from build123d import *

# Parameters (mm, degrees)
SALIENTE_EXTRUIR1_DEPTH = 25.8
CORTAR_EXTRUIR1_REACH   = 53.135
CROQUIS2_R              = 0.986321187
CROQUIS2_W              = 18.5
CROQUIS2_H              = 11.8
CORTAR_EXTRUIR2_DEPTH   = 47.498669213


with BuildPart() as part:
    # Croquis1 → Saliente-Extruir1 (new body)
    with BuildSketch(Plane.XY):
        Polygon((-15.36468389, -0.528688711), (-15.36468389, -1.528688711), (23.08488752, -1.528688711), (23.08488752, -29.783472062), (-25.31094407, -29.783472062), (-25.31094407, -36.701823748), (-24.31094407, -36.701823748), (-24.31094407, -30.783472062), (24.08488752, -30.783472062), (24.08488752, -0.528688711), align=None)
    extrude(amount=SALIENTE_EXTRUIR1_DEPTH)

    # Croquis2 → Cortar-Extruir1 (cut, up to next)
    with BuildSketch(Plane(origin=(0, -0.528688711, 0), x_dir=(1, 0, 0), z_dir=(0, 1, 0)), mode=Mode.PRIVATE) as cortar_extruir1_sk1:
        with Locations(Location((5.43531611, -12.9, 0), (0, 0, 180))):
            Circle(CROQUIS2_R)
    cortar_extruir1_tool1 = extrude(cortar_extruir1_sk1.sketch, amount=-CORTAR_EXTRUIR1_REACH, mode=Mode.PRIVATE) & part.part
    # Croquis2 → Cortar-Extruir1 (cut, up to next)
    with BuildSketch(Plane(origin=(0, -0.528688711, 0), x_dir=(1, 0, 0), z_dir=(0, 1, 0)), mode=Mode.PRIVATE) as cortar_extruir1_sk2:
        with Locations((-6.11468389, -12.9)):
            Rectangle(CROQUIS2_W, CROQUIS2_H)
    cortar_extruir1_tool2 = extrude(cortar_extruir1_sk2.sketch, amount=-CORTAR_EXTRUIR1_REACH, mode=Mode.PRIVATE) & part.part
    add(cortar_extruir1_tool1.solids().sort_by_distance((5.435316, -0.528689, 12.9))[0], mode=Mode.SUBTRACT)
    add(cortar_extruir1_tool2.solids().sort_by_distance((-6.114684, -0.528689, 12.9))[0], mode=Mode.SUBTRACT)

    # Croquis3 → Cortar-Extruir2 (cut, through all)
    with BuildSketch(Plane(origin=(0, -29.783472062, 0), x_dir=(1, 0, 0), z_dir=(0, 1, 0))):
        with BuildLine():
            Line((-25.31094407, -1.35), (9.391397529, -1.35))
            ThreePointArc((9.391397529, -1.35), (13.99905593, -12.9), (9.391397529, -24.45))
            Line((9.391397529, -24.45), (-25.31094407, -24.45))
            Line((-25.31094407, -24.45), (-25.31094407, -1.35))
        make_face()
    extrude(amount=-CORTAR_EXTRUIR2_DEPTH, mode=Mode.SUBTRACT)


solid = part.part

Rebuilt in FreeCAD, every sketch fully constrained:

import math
import FreeCAD as App
import Part
import Sketcher

V = App.Vector
Q = App.Units.Quantity


def add_polygon(sketch, points):
    """Adds a closed chain of lines whose ends are joined by coincident constraints."""
    first, n = sketch.GeometryCount, len(points)
    for a, b in zip(points, points[1:] + points[:1]):
        sketch.addGeometry(Part.LineSegment(App.Vector(*a, 0), App.Vector(*b, 0)), False)
    for i in range(n):
        sketch.addConstraint(Sketcher.Constraint("Coincident", first + i, 2, first + (i + 1) % n, 1))

doc = App.newDocument("Part")
body = doc.addObject("PartDesign::Body", "Body")

# Sketch on XY plane
sketch1 = body.newObject("Sketcher::SketchObject", "Sketch")
sketch1.AttachmentSupport = (doc.getObject("XY_Plane"), [""])
sketch1.MapMode = "FlatFace"
add_polygon(sketch1, [(-15.4, -0.5), (-15.4, -1.5), (23.1, -1.5), (23.1, -29.8), (-25.3, -29.8), (-25.3, -36.7), (-24.3, -36.7), (-24.3, -30.8), (24.1, -30.8), (24.1, -0.5)])  # lines 0-9
sketch1.addConstraint(Sketcher.Constraint("Vertical", 0))
sketch1.addConstraint(Sketcher.Constraint("Horizontal", 1))
sketch1.addConstraint(Sketcher.Constraint("Vertical", 2))
sketch1.addConstraint(Sketcher.Constraint("Horizontal", 3))
sketch1.addConstraint(Sketcher.Constraint("Vertical", 4))
sketch1.addConstraint(Sketcher.Constraint("Horizontal", 5))
sketch1.addConstraint(Sketcher.Constraint("Vertical", 6))
sketch1.addConstraint(Sketcher.Constraint("Horizontal", 7))
sketch1.addConstraint(Sketcher.Constraint("Vertical", 8))
sketch1.addConstraint(Sketcher.Constraint("Horizontal", 9))
sketch1.addConstraint(Sketcher.Constraint("Equal", 3, 7))
sketch1.addConstraint(Sketcher.Constraint("Equal", 5, 0))
sketch1.addConstraint(Sketcher.Constraint("DistanceX", 5, 1, 5, 2, Q("1 mm")))
sketch1.addConstraint(Sketcher.Constraint("DistanceY", 6, 2, 3, 2, Q("1 mm")))
sketch1.addConstraint(Sketcher.Constraint("DistanceX", 1, 1, 1, 2, Q("38.449571 mm")))
sketch1.addConstraint(Sketcher.Constraint("DistanceX", 3, 2, 3, 1, Q("48.395832 mm")))
sketch1.addConstraint(Sketcher.Constraint("DistanceY", 4, 2, 4, 1, Q("6.918352 mm")))
sketch1.addConstraint(Sketcher.Constraint("DistanceY", 2, 2, 2, 1, Q("28.254783 mm")))
sketch1.addConstraint(Sketcher.Constraint("DistanceY", 0, 2, -1, 1, Q("1.528689 mm")))
sketch1.addConstraint(Sketcher.Constraint("DistanceX", 0, 2, -1, 1, Q("15.364684 mm")))
pad1 = body.newObject("PartDesign::Pad", "Pad")
pad1.Profile = sketch1
pad1.Length = 25.8

# Sketch on XZ plane
sketch2 = body.newObject("Sketcher::SketchObject", "Sketch001")
sketch2.AttachmentSupport = (doc.getObject("XZ_Plane"), [""])
sketch2.MapMode = "FlatFace"
sketch2.AttachmentOffset = App.Placement(V(0, 0, 0.528689), App.Rotation())
sketch2.addGeometry(Part.Circle(V(5.4, 12.9, 0), V(0, 0, 1), 1), False)
sketch2.addConstraint(Sketcher.Constraint("DistanceY", -1, 1, 0, 3, Q("12.9 mm")))
sketch2.addConstraint(Sketcher.Constraint("Diameter", 0, Q("1.972642 mm")))
sketch2.addConstraint(Sketcher.Constraint("DistanceX", -1, 1, 0, 3, Q("5.435316 mm")))
pocket1 = body.newObject("PartDesign::Pocket", "Pocket")
pocket1.Profile = sketch2
pocket1.Type = "UpToFirst"
pocket1.Reversed = True

# Sketch on XZ plane
sketch3 = body.newObject("Sketcher::SketchObject", "Sketch002")
sketch3.AttachmentSupport = (doc.getObject("XZ_Plane"), [""])
sketch3.MapMode = "FlatFace"
sketch3.AttachmentOffset = App.Placement(V(0, 0, 0.528689), App.Rotation())
add_polygon(sketch3, [(-15, 7), (-15, 19), (3, 19), (3, 7)])  # lines 0-3
sketch3.addConstraint(Sketcher.Constraint("Vertical", 0))
sketch3.addConstraint(Sketcher.Constraint("Horizontal", 1))
sketch3.addConstraint(Sketcher.Constraint("Vertical", 2))
sketch3.addConstraint(Sketcher.Constraint("Horizontal", 3))
sketch3.addConstraint(Sketcher.Constraint("DistanceX", 1, 1, 1, 2, Q("18.5 mm")))
sketch3.addConstraint(Sketcher.Constraint("DistanceY", 0, 1, 0, 2, Q("11.8 mm")))
sketch3.addConstraint(Sketcher.Constraint("DistanceY", -1, 1, 2, 2, Q("7 mm")))
sketch3.addConstraint(Sketcher.Constraint("DistanceX", 0, 2, -1, 1, Q("15.364684 mm")))
pocket2 = body.newObject("PartDesign::Pocket", "Pocket001")
pocket2.Profile = sketch3
pocket2.Type = "UpToFirst"
pocket2.Reversed = True

# Sketch on XZ plane
sketch4 = body.newObject("Sketcher::SketchObject", "Sketch003")
sketch4.AttachmentSupport = (doc.getObject("XZ_Plane"), [""])
sketch4.MapMode = "FlatFace"
sketch4.AttachmentOffset = App.Placement(V(0, 0, 29.783472), App.Rotation())
sketch4.addGeometry(Part.LineSegment(V(9, 1, 0), V(-25, 1, 0)), False)
sketch4.addGeometry(Part.LineSegment(V(-25, 1, 0), V(-25, 24, 0)), False)
sketch4.addGeometry(Part.LineSegment(V(-25, 24, 0), V(9, 24, 0)), False)
sketch4.addGeometry(Part.ArcOfCircle(Part.Circle(V(-3, 13, 0), V(0, 0, 1), 17), math.radians(-43), math.radians(43)), False)
sketch4.addConstraint(Sketcher.Constraint("Coincident", 0, 2, 1, 1))
sketch4.addConstraint(Sketcher.Constraint("Coincident", 1, 2, 2, 1))
sketch4.addConstraint(Sketcher.Constraint("Coincident", 2, 2, 3, 2))
sketch4.addConstraint(Sketcher.Constraint("Coincident", 3, 1, 0, 1))
sketch4.addConstraint(Sketcher.Constraint("Horizontal", 0))
sketch4.addConstraint(Sketcher.Constraint("Vertical", 1))
sketch4.addConstraint(Sketcher.Constraint("Horizontal", 2))
sketch4.addConstraint(Sketcher.Constraint("Vertical", 2, 2, 3, 1))
sketch4.addConstraint(Sketcher.Constraint("Radius", 3, Q("16.78 mm")))
sketch4.addConstraint(Sketcher.Constraint("DistanceY", 1, 1, 1, 2, Q("23.1 mm")))
sketch4.addConstraint(Sketcher.Constraint("DistanceY", -1, 1, 3, 3, Q("12.9 mm")))
sketch4.addConstraint(Sketcher.Constraint("DistanceX", 0, 2, 3, 3, Q("22.53 mm")))
sketch4.addConstraint(Sketcher.Constraint("DistanceX", 3, 3, -1, 1, Q("2.780944 mm")))
pocket3 = body.newObject("PartDesign::Pocket", "Pocket002")
pocket3.Profile = sketch4
pocket3.Type = "ThroughAll"
pocket3.Reversed = True

doc.recompute()
